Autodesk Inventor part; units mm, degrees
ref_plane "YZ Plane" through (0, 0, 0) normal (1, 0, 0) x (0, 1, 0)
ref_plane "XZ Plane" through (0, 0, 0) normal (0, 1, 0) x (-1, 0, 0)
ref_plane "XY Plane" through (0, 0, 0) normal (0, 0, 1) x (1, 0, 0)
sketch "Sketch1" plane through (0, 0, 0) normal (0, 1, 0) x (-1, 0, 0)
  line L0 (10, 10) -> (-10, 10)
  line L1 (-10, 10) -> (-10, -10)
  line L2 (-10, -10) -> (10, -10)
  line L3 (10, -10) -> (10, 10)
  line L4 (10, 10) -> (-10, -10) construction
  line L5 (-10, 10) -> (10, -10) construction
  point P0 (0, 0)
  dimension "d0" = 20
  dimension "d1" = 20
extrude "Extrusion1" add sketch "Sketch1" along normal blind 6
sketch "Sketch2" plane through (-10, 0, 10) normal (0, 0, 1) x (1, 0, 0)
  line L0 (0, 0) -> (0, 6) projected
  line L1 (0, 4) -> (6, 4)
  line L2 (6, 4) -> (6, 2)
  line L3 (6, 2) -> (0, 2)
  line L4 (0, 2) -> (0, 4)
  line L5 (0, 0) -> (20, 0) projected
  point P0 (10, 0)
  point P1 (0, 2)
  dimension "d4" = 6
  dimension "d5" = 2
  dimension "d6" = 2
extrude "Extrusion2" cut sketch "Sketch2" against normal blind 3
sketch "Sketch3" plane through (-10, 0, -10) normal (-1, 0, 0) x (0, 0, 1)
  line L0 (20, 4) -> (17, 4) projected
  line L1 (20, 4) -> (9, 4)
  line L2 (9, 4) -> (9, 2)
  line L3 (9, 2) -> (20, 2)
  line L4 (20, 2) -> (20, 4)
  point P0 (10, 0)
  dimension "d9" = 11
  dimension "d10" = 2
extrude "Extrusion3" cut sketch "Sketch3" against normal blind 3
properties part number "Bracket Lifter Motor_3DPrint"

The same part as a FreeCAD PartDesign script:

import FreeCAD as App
import Part
import Sketcher
from FreeCAD import Vector
Q = App.Units.Quantity

doc = App.newDocument("Part")
params = doc.addObject("Spreadsheet::Sheet", "Params")
for row, (alias, value) in enumerate([
    ("sketch1_width", "20 mm"),
    ("pad1_length", "6 mm"),
    ("sketch2_width", "6 mm"),
    ("sketch2_height", "2 mm"),
    ("pocket1_length", "3 mm"),
    ("sketch3_width", "2 mm"),
    ("sketch3_height", "11 mm"),
    ("pocket2_length", "3 mm"),
], start=1):
    params.set(f"A{row}", alias)
    params.set(f"B{row}", "=" + value)
    params.setAlias(f"B{row}", alias)

body = doc.addObject("PartDesign::Body", "Body")

sketch1 = doc.addObject("Sketcher::SketchObject", "Sketch")
body.addObject(sketch1)
sketch1.AttachmentSupport = (doc.XZ_Plane, [""])
sketch1.MapMode = "FlatFace"
sketch1.addGeometry([
    Part.LineSegment(Vector(-10, -10, 0), Vector(-10, 10, 0)),
    Part.LineSegment(Vector(-10, 10, 0), Vector(10, 10, 0)),
    Part.LineSegment(Vector(10, 10, 0), Vector(10, -10, 0)),
    Part.LineSegment(Vector(10, -10, 0), Vector(-10, -10, 0)),
], False)
sketch1.addConstraint([
    Sketcher.Constraint("Coincident", 0, 2, 1, 1),
    Sketcher.Constraint("Coincident", 1, 2, 2, 1),
    Sketcher.Constraint("Coincident", 2, 2, 3, 1),
    Sketcher.Constraint("Coincident", 3, 2, 0, 1),
    Sketcher.Constraint("Vertical", 0),
    Sketcher.Constraint("Horizontal", 1),
    Sketcher.Constraint("Vertical", 2),
    Sketcher.Constraint("Horizontal", 3),
    Sketcher.Constraint("Symmetric", 0, 2, 2, 2, -1, 1),
    Sketcher.Constraint("Equal", 3, 0),
    Sketcher.Constraint("DistanceX", 1, 1, 1, 2, Q("20 mm")),
])
sketch1.setExpression("Constraints[10]", "Params.sketch1_width")
pad1 = doc.addObject("PartDesign::Pad", "Pad")
body.addObject(pad1)
pad1.Profile = sketch1
pad1.setExpression("Length", "Params.pad1_length")
pad1.Reversed = True

sketch2 = doc.addObject("Sketcher::SketchObject", "Sketch001")
body.addObject(sketch2)
sketch2.AttachmentSupport = (doc.XY_Plane, [""])
sketch2.MapMode = "FlatFace"
sketch2.AttachmentOffset = App.Placement(Vector(0, 0, 10), App.Rotation())
sketch2.addGeometry([
    Part.LineSegment(Vector(-10, 4, 0), Vector(-10, 2, 0)),
    Part.LineSegment(Vector(-10, 2, 0), Vector(-4, 2, 0)),
    Part.LineSegment(Vector(-4, 2, 0), Vector(-4, 4, 0)),
    Part.LineSegment(Vector(-4, 4, 0), Vector(-10, 4, 0)),
], False)
sketch2.addConstraint([
    Sketcher.Constraint("Coincident", 0, 2, 1, 1),
    Sketcher.Constraint("Coincident", 1, 2, 2, 1),
    Sketcher.Constraint("Coincident", 2, 2, 3, 1),
    Sketcher.Constraint("Coincident", 3, 2, 0, 1),
    Sketcher.Constraint("Vertical", 0),
    Sketcher.Constraint("Horizontal", 1),
    Sketcher.Constraint("Vertical", 2),
    Sketcher.Constraint("Horizontal", 3),
    Sketcher.Constraint("DistanceX", 1, 1, 1, 2, Q("6 mm")),
    Sketcher.Constraint("DistanceY", 0, 2, 0, 1, Q("2 mm")),
    Sketcher.Constraint("DistanceY", -1, 1, 0, 2, Q("2 mm")),
    Sketcher.Constraint("DistanceX", 0, 2, -1, 1, Q("10 mm")),
])
sketch2.setExpression("Constraints[8]", "Params.sketch2_width")
sketch2.setExpression("Constraints[9]", "Params.sketch2_height")
pocket1 = doc.addObject("PartDesign::Pocket", "Pocket")
body.addObject(pocket1)
pocket1.Profile = sketch2
pocket1.setExpression("Length", "Params.pocket1_length")

sketch3 = doc.addObject("Sketcher::SketchObject", "Sketch002")
body.addObject(sketch3)
sketch3.AttachmentSupport = (doc.YZ_Plane, [""])
sketch3.MapMode = "FlatFace"
sketch3.AttachmentOffset = App.Placement(Vector(0, 0, -10), App.Rotation())
sketch3.addGeometry([
    Part.LineSegment(Vector(2, 10, 0), Vector(4, 10, 0)),
    Part.LineSegment(Vector(4, 10, 0), Vector(4, -1, 0)),
    Part.LineSegment(Vector(4, -1, 0), Vector(2, -1, 0)),
    Part.LineSegment(Vector(2, -1, 0), Vector(2, 10, 0)),
], False)
sketch3.addConstraint([
    Sketcher.Constraint("Coincident", 0, 2, 1, 1),
    Sketcher.Constraint("Coincident", 1, 2, 2, 1),
    Sketcher.Constraint("Coincident", 2, 2, 3, 1),
    Sketcher.Constraint("Coincident", 3, 2, 0, 1),
    Sketcher.Constraint("Horizontal", 0),
    Sketcher.Constraint("Vertical", 1),
    Sketcher.Constraint("Horizontal", 2),
    Sketcher.Constraint("Vertical", 3),
    Sketcher.Constraint("DistanceX", 0, 1, 0, 2, Q("2 mm")),
    Sketcher.Constraint("DistanceY", 1, 2, 1, 1, Q("11 mm")),
    Sketcher.Constraint("DistanceX", -1, 1, 2, 2, Q("2 mm")),
    Sketcher.Constraint("DistanceY", -1, 1, 0, 2, Q("10 mm")),
])
sketch3.setExpression("Constraints[8]", "Params.sketch3_width")
sketch3.setExpression("Constraints[9]", "Params.sketch3_height")
pocket2 = doc.addObject("PartDesign::Pocket", "Pocket001")
body.addObject(pocket2)
pocket2.Profile = sketch3
pocket2.setExpression("Length", "Params.pocket2_length")
pocket2.Reversed = True

doc.recompute()
